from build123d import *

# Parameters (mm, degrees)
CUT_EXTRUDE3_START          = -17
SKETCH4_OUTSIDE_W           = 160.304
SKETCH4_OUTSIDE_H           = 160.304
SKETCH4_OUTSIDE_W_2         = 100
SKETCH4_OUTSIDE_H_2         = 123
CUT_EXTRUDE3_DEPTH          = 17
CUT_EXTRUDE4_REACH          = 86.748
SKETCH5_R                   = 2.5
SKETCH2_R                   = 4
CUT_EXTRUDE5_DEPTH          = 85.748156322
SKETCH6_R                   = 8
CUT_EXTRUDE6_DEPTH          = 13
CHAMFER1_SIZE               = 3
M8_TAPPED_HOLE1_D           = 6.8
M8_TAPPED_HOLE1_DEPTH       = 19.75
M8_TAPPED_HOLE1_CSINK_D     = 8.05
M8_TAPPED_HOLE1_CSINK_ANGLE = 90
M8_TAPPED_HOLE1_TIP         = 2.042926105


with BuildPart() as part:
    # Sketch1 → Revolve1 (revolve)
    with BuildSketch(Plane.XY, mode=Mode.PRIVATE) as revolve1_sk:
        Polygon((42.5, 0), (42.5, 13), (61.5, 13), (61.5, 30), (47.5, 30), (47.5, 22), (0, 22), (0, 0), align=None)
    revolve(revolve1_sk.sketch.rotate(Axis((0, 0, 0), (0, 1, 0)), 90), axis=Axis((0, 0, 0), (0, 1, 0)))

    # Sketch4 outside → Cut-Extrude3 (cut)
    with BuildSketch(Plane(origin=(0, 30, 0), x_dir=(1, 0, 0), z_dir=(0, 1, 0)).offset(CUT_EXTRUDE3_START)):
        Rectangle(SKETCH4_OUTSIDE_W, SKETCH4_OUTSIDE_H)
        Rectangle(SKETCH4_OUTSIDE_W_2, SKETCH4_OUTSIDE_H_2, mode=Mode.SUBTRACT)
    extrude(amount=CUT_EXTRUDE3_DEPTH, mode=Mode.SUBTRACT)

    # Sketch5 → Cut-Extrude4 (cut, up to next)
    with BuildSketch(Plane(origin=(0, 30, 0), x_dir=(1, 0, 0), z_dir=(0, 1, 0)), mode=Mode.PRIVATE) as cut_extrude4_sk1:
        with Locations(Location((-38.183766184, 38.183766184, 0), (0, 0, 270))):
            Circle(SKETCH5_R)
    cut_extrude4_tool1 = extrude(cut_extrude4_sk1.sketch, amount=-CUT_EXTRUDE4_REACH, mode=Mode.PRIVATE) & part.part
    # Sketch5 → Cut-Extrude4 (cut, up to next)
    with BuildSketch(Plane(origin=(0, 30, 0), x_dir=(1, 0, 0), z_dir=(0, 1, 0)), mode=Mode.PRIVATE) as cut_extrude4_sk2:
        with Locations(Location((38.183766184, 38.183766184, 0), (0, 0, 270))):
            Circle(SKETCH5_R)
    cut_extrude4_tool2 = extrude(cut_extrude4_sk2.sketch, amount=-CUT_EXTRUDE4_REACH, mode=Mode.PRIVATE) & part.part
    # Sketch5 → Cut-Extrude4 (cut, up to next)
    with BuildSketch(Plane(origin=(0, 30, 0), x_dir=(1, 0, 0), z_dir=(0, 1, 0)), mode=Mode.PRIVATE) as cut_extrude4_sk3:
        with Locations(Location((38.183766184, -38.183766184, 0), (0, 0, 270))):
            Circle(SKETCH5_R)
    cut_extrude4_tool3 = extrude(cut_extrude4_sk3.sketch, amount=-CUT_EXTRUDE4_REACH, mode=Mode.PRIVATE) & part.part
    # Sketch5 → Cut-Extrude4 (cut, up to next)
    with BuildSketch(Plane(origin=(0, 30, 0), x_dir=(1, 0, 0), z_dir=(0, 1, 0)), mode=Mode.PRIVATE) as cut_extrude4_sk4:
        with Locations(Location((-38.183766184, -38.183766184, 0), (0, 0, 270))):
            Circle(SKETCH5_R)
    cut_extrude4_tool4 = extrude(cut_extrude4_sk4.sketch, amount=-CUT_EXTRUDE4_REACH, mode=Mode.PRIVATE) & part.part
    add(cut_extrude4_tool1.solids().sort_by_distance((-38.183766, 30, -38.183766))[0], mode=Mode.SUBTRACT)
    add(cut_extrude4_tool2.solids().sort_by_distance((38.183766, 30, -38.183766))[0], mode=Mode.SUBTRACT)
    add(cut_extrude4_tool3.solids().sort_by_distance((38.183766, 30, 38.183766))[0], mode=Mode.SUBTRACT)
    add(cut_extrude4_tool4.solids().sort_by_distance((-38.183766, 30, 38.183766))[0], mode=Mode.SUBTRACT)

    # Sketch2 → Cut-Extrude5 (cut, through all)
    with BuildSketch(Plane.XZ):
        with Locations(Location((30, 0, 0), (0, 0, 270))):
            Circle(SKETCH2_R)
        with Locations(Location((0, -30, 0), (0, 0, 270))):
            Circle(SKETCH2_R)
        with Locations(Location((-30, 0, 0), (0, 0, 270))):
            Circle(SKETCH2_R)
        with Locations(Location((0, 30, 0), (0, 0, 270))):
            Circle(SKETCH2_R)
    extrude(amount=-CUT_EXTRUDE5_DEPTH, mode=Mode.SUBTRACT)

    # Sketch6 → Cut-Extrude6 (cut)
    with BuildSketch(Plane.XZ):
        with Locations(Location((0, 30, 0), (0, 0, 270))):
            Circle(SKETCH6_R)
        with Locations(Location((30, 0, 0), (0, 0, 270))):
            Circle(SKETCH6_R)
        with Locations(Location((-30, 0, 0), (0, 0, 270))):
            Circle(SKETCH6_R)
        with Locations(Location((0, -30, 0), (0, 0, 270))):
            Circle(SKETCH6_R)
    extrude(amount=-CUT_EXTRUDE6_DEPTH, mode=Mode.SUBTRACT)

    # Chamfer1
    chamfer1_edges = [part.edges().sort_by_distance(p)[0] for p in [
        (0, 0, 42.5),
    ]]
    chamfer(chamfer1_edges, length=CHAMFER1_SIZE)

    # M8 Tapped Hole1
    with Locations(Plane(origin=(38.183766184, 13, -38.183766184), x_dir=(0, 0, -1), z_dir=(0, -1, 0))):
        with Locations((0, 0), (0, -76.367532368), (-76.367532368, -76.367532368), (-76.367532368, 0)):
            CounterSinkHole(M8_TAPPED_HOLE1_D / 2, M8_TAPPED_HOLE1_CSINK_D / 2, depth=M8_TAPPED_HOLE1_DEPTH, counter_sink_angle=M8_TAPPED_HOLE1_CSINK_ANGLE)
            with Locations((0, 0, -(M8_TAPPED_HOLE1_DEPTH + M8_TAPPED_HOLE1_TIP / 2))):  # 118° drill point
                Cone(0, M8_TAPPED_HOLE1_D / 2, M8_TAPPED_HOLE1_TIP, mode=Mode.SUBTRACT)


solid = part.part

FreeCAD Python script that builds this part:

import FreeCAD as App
import Part
import Sketcher
from FreeCAD import Vector
Q = App.Units.Quantity


def edges_at(feature, points):
    """Names of the edges that pass closest to the given points."""
    edges = feature.Shape.Edges
    near = lambda p: min(range(len(edges)), key=lambda i: edges[i].distToShape(Part.Vertex(*p))[0])
    return sorted({f"Edge{near(p) + 1}" for p in points})

doc = App.newDocument("Part")
body = doc.addObject("PartDesign::Body", "Body")

# Sketch on XY plane
sketch1 = body.newObject("Sketcher::SketchObject", "Sketch")
sketch1.AttachmentSupport = (doc.getObject("XY_Plane"), [""])
sketch1.MapMode = "FlatFace"
sketch1.addGeometry([
    Part.LineSegment(Vector(42.5, 0, 0), Vector(42.5, 13, 0)),  # 0
    Part.LineSegment(Vector(42.5, 13, 0), Vector(61.5, 13, 0)),  # 1
    Part.LineSegment(Vector(61.5, 13, 0), Vector(61.5, 30, 0)),  # 2
    Part.LineSegment(Vector(61.5, 30, 0), Vector(47.5, 30, 0)),  # 3
    Part.LineSegment(Vector(47.5, 30, 0), Vector(47.5, 22, 0)),  # 4
    Part.LineSegment(Vector(47.5, 22, 0), Vector(0, 22, 0)),  # 5
    Part.LineSegment(Vector(0, 22, 0), Vector(0, 0, 0)),  # 6
    Part.LineSegment(Vector(0, 0, 0), Vector(42.5, 0, 0)),  # 7
], False)
sketch1.addConstraint([
    Sketcher.Constraint("Coincident", 0, 2, 1, 1),
    Sketcher.Constraint("Coincident", 1, 2, 2, 1),
    Sketcher.Constraint("Coincident", 2, 2, 3, 1),
    Sketcher.Constraint("Coincident", 3, 2, 4, 1),
    Sketcher.Constraint("Coincident", 4, 2, 5, 1),
    Sketcher.Constraint("Coincident", 5, 2, 6, 1),
    Sketcher.Constraint("Coincident", 6, 2, 7, 1),
    Sketcher.Constraint("Coincident", 7, 2, 0, 1),
    Sketcher.Constraint("Vertical", 0),
    Sketcher.Constraint("Horizontal", 1),
    Sketcher.Constraint("Vertical", 2),
    Sketcher.Constraint("Horizontal", 3),
    Sketcher.Constraint("Vertical", 4),
    Sketcher.Constraint("Horizontal", 5),
    Sketcher.Constraint("Vertical", 6),
    Sketcher.Constraint("Horizontal", 7),
    Sketcher.Constraint("Coincident", 6, 2, -1, 1),
    Sketcher.Constraint("DistanceX", 1, 1, 1, 2, Q("19 mm")),
    Sketcher.Constraint("DistanceX", 3, 2, 3, 1, Q("14 mm")),
    Sketcher.Constraint("DistanceY", 0, 1, 0, 2, Q("13 mm")),
    Sketcher.Constraint("DistanceY", 2, 1, 2, 2, Q("17 mm")),
    Sketcher.Constraint("DistanceY", 4, 2, 4, 1, Q("8 mm")),
    Sketcher.Constraint("DistanceX", 5, 2, 5, 1, Q("47.5 mm")),
])
revolution = body.newObject("PartDesign::Revolution", "Revolution")
revolution.Profile = sketch1
revolution.ReferenceAxis = (sketch1, ["V_Axis"])
revolution.Angle = 360

# Sketch on XZ plane
sketch2 = body.newObject("Sketcher::SketchObject", "Sketch001")
sketch2.AttachmentSupport = (doc.getObject("XZ_Plane"), [""])
sketch2.MapMode = "FlatFace"
sketch2.AttachmentOffset = App.Placement(Vector(0, 0, -13), App.Rotation())
sketch2.addGeometry([
    Part.LineSegment(Vector(-80.152, -80.152, 0), Vector(-80.152, 80.152, 0)),  # 0
    Part.LineSegment(Vector(-80.152, 80.152, 0), Vector(80.152, 80.152, 0)),  # 1
    Part.LineSegment(Vector(80.152, 80.152, 0), Vector(80.152, -80.152, 0)),  # 2
    Part.LineSegment(Vector(80.152, -80.152, 0), Vector(-80.152, -80.152, 0)),  # 3
    Part.LineSegment(Vector(50, 61.5, 0), Vector(-50, 61.5, 0)),  # 4
    Part.LineSegment(Vector(-50, 61.5, 0), Vector(-50, -61.5, 0)),  # 5
    Part.LineSegment(Vector(-50, -61.5, 0), Vector(50, -61.5, 0)),  # 6
    Part.LineSegment(Vector(50, -61.5, 0), Vector(50, 61.5, 0)),  # 7
], False)
sketch2.addConstraint([
    Sketcher.Constraint("Coincident", 0, 2, 1, 1),
    Sketcher.Constraint("Coincident", 1, 2, 2, 1),
    Sketcher.Constraint("Coincident", 2, 2, 3, 1),
    Sketcher.Constraint("Coincident", 3, 2, 0, 1),
    Sketcher.Constraint("Coincident", 4, 2, 5, 1),
    Sketcher.Constraint("Coincident", 5, 2, 6, 1),
    Sketcher.Constraint("Coincident", 6, 2, 7, 1),
    Sketcher.Constraint("Coincident", 7, 2, 4, 1),
    Sketcher.Constraint("Vertical", 0),
    Sketcher.Constraint("Horizontal", 1),
    Sketcher.Constraint("Vertical", 2),
    Sketcher.Constraint("Horizontal", 3),
    Sketcher.Constraint("Horizontal", 4),
    Sketcher.Constraint("Vertical", 5),
    Sketcher.Constraint("Horizontal", 6),
    Sketcher.Constraint("Vertical", 7),
    Sketcher.Constraint("Symmetric", 0, 2, 2, 2, -1, 1),
    Sketcher.Constraint("Symmetric", 4, 2, 6, 2, -1, 1),
    Sketcher.Constraint("Equal", 3, 0),
    Sketcher.Constraint("DistanceX", 4, 2, 4, 1, Q("100 mm")),
    Sketcher.Constraint("DistanceY", 5, 2, 5, 1, Q("123 mm")),
    Sketcher.Constraint("DistanceX", 1, 1, 1, 2, Q("160.304 mm")),
])
pocket1 = body.newObject("PartDesign::Pocket", "Pocket")
pocket1.Profile = sketch2
pocket1.Length = 17

# Sketch on XZ plane
sketch3 = body.newObject("Sketcher::SketchObject", "Sketch002")
sketch3.AttachmentSupport = (doc.getObject("XZ_Plane"), [""])
sketch3.MapMode = "FlatFace"
sketch3.AttachmentOffset = App.Placement(Vector(0, 0, -30), App.Rotation())
sketch3.addGeometry(Part.Circle(Vector(-38.183766, -38.183766, 0), Vector(0, 0, 1), 2.5), False)
sketch3.addConstraint([
    Sketcher.Constraint("Diameter", 0, Q("5 mm")),
    Sketcher.Constraint("DistanceX", 0, 3, -1, 1, Q("38.183766 mm")),
    Sketcher.Constraint("DistanceY", 0, 3, -1, 1, Q("38.183766 mm")),
])
pocket2 = body.newObject("PartDesign::Pocket", "Pocket001")
pocket2.Profile = sketch3
pocket2.Type = "UpToFirst"
pocket2.Reversed = True

# Sketch on XZ plane
sketch4 = body.newObject("Sketcher::SketchObject", "Sketch003")
sketch4.AttachmentSupport = (doc.getObject("XZ_Plane"), [""])
sketch4.MapMode = "FlatFace"
sketch4.AttachmentOffset = App.Placement(Vector(0, 0, -30), App.Rotation())
sketch4.addGeometry(Part.Circle(Vector(38.183766, -38.183766, 0), Vector(0, 0, 1), 2.5), False)
sketch4.addConstraint([
    Sketcher.Constraint("Diameter", 0, Q("5 mm")),
    Sketcher.Constraint("DistanceX", -1, 1, 0, 3, Q("38.183766 mm")),
    Sketcher.Constraint("DistanceY", 0, 3, -1, 1, Q("38.183766 mm")),
])
pocket3 = body.newObject("PartDesign::Pocket", "Pocket002")
pocket3.Profile = sketch4
pocket3.Type = "UpToFirst"
pocket3.Reversed = True

# Sketch on XZ plane
sketch5 = body.newObject("Sketcher::SketchObject", "Sketch004")
sketch5.AttachmentSupport = (doc.getObject("XZ_Plane"), [""])
sketch5.MapMode = "FlatFace"
sketch5.AttachmentOffset = App.Placement(Vector(0, 0, -30), App.Rotation())
sketch5.addGeometry(Part.Circle(Vector(38.183766, 38.183766, 0), Vector(0, 0, 1), 2.5), False)
sketch5.addConstraint([
    Sketcher.Constraint("Diameter", 0, Q("5 mm")),
    Sketcher.Constraint("DistanceX", -1, 1, 0, 3, Q("38.183766 mm")),
    Sketcher.Constraint("DistanceY", -1, 1, 0, 3, Q("38.183766 mm")),
])
pocket4 = body.newObject("PartDesign::Pocket", "Pocket003")
pocket4.Profile = sketch5
pocket4.Type = "UpToFirst"
pocket4.Reversed = True

# Sketch on XZ plane
sketch6 = body.newObject("Sketcher::SketchObject", "Sketch005")
sketch6.AttachmentSupport = (doc.getObject("XZ_Plane"), [""])
sketch6.MapMode = "FlatFace"
sketch6.AttachmentOffset = App.Placement(Vector(0, 0, -30), App.Rotation())
sketch6.addGeometry(Part.Circle(Vector(-38.183766, 38.183766, 0), Vector(0, 0, 1), 2.5), False)
sketch6.addConstraint([
    Sketcher.Constraint("Diameter", 0, Q("5 mm")),
    Sketcher.Constraint("DistanceX", 0, 3, -1, 1, Q("38.183766 mm")),
    Sketcher.Constraint("DistanceY", -1, 1, 0, 3, Q("38.183766 mm")),
])
pocket5 = body.newObject("PartDesign::Pocket", "Pocket004")
pocket5.Profile = sketch6
pocket5.Type = "UpToFirst"
pocket5.Reversed = True

# Sketch on XZ plane
sketch7 = body.newObject("Sketcher::SketchObject", "Sketch006")
sketch7.AttachmentSupport = (doc.getObject("XZ_Plane"), [""])
sketch7.MapMode = "FlatFace"
sketch7.addGeometry([
    Part.Circle(Vector(30, 0, 0), Vector(0, 0, 1), 4),
    Part.Circle(Vector(0, -30, 0), Vector(0, 0, 1), 4),
    Part.Circle(Vector(-30, 0, 0), Vector(0, 0, 1), 4),
    Part.Circle(Vector(0, 30, 0), Vector(0, 0, 1), 4),
], False)
sketch7.addConstraint([
    Sketcher.Constraint("Equal", 0, 1),
    Sketcher.Constraint("Equal", 1, 2),
    Sketcher.Constraint("Equal", 2, 3),
    Sketcher.Constraint("Symmetric", 0, 3, 2, 3, -1, 1),
    Sketcher.Constraint("Symmetric", 1, 3, 3, 3, -1, 1),
    Sketcher.Constraint("PointOnObject", 0, 3, -1),
    Sketcher.Constraint("PointOnObject", 1, 3, -2),
    Sketcher.Constraint("Diameter", 0, Q("8 mm")),
    Sketcher.Constraint("DistanceX", -1, 1, 0, 3, Q("30 mm")),
    Sketcher.Constraint("DistanceY", 1, 3, -1, 1, Q("30 mm")),
])
pocket6 = body.newObject("PartDesign::Pocket", "Pocket005")
pocket6.Profile = sketch7
pocket6.Type = "ThroughAll"

# Sketch on XZ plane
sketch8 = body.newObject("Sketcher::SketchObject", "Sketch007")
sketch8.AttachmentSupport = (doc.getObject("XZ_Plane"), [""])
sketch8.MapMode = "FlatFace"
sketch8.addGeometry([
    Part.Circle(Vector(0, 30, 0), Vector(0, 0, 1), 8),
    Part.Circle(Vector(30, 0, 0), Vector(0, 0, 1), 8),
    Part.Circle(Vector(-30, 0, 0), Vector(0, 0, 1), 8),
    Part.Circle(Vector(0, -30, 0), Vector(0, 0, 1), 8),
], False)
sketch8.addConstraint([
    Sketcher.Constraint("Equal", 0, 1),
    Sketcher.Constraint("Equal", 1, 2),
    Sketcher.Constraint("Equal", 2, 3),
    Sketcher.Constraint("Symmetric", 1, 3, 2, 3, -1, 1),
    Sketcher.Constraint("Symmetric", 0, 3, 3, 3, -1, 1),
    Sketcher.Constraint("PointOnObject", 0, 3, -2),
    Sketcher.Constraint("PointOnObject", 1, 3, -1),
    Sketcher.Constraint("Diameter", 0, Q("16 mm")),
    Sketcher.Constraint("DistanceY", -1, 1, 0, 3, Q("30 mm")),
    Sketcher.Constraint("DistanceX", -1, 1, 1, 3, Q("30 mm")),
])
pocket7 = body.newObject("PartDesign::Pocket", "Pocket006")
pocket7.Profile = sketch8
pocket7.Length = 13
doc.recompute()

chamfer = body.newObject("PartDesign::Chamfer", "Chamfer")
chamfer.Base = (pocket7, edges_at(pocket7, [(0, 0, 42.5)]))
chamfer.Size = 3

# Sketch on XZ plane
sketch9 = body.newObject("Sketcher::SketchObject", "Sketch008")
sketch9.AttachmentSupport = (doc.getObject("XZ_Plane"), [""])
sketch9.MapMode = "FlatFace"
sketch9.AttachmentOffset = App.Placement(Vector(0, 0, -13), App.Rotation())
sketch9.addGeometry([
    Part.Circle(Vector(38.183766, -38.183766, 0), Vector(0, 0, 1), 3.4),
    Part.Circle(Vector(-38.183766, -38.183766, 0), Vector(0, 0, 1), 3.4),
    Part.Circle(Vector(-38.183766, 38.183766, 0), Vector(0, 0, 1), 3.4),
    Part.Circle(Vector(38.183766, 38.183766, 0), Vector(0, 0, 1), 3.4),
], False)
sketch9.addConstraint([
    Sketcher.Constraint("Equal", 0, 1),
    Sketcher.Constraint("Equal", 1, 2),
    Sketcher.Constraint("Equal", 2, 3),
    Sketcher.Constraint("Symmetric", 0, 3, 2, 3, -1, 1),
    Sketcher.Constraint("Symmetric", 1, 3, 3, 3, -1, 1),
    Sketcher.Constraint("Symmetric", 0, 3, 1, 3, -2),
    Sketcher.Constraint("Diameter", 0, Q("6.8 mm")),
    Sketcher.Constraint("DistanceX", -1, 1, 0, 3, Q("38.183766 mm")),
    Sketcher.Constraint("DistanceY", 0, 3, -1, 1, Q("38.183766 mm")),
])
doc.recompute()
hole = body.newObject("PartDesign::Hole", "Hole")
hole.Profile = sketch9
hole.ThreadType = "None"
hole.Diameter = 6.8
hole.DepthType = "Dimension"
hole.Depth = 19.75
hole.DrillPoint = "Angled"
hole.DrillPointAngle = 118
hole.HoleCutType = "Countersink"
hole.HoleCutDiameter = 8.05
hole.HoleCutCountersinkAngle = 90

doc.recompute()
